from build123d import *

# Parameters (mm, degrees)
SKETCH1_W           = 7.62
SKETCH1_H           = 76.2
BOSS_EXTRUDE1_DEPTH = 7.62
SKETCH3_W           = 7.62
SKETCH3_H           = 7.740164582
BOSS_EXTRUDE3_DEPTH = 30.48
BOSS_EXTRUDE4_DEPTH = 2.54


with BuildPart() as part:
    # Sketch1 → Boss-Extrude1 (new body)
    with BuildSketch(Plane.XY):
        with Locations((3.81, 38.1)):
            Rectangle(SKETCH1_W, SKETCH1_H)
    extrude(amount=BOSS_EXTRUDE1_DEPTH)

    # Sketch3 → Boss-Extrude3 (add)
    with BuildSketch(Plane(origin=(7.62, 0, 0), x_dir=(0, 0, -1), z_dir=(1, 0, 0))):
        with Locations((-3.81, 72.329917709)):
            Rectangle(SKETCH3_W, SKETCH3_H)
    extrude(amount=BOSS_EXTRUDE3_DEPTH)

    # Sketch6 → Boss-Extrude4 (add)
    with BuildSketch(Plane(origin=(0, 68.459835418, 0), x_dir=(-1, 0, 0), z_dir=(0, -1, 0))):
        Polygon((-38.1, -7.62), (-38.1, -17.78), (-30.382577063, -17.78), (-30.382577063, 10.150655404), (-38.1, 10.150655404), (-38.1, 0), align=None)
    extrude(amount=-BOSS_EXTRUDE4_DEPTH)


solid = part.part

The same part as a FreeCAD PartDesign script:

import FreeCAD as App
import Part
import Sketcher
Q = App.Units.Quantity

doc = App.newDocument("Part")
params = doc.addObject("Spreadsheet::Sheet", "Params")
for row, (alias, value) in enumerate([
    ("sketch1_height", "3 in"),
    ("sketch1_width", "0.3 in"),
    ("pad1_length", "0.3 in"),
    ("sketch2_height", "0.3 in"),
    ("pad2_length", "1.2 in"),
    ("pad3_length", "0.1 in"),
], start=1):
    params.set(f"A{row}", alias)
    params.set(f"B{row}", "=" + value)
    params.setAlias(f"B{row}", alias)

body = doc.addObject("PartDesign::Body", "Body")

# Sketch on XY plane
sketch1 = doc.addObject("Sketcher::SketchObject", "Sketch")
body.addObject(sketch1)
sketch1.AttachmentSupport = (doc.XY_Plane, [""])
sketch1.MapMode = "FlatFace"
sketch1.addGeometry([
    Part.LineSegment(App.Vector(0, 76.2, 0), App.Vector(0, 0, 0)),
    Part.LineSegment(App.Vector(0, 0, 0), App.Vector(7.62, 0, 0)),
    Part.LineSegment(App.Vector(7.62, 0, 0), App.Vector(7.62, 76.2, 0)),
    Part.LineSegment(App.Vector(7.62, 76.2, 0), App.Vector(0, 76.2, 0)),
], False)
sketch1.addConstraint([
    Sketcher.Constraint("Coincident", 0, 2, 1, 1),
    Sketcher.Constraint("Coincident", 1, 2, 2, 1),
    Sketcher.Constraint("Coincident", 2, 2, 3, 1),
    Sketcher.Constraint("Coincident", 3, 2, 0, 1),
    Sketcher.Constraint("Vertical", 0),
    Sketcher.Constraint("Horizontal", 1),
    Sketcher.Constraint("Vertical", 2),
    Sketcher.Constraint("Horizontal", 3),
    Sketcher.Constraint("Coincident", 0, 2, -1, 1),
    Sketcher.Constraint("DistanceY", 0, 2, 0, 1, Q("3 in")),
    Sketcher.Constraint("DistanceX", 1, 1, 1, 2, Q("0.3 in")),
])
sketch1.setExpression("Constraints[9]", "Params.sketch1_height")
sketch1.setExpression("Constraints[10]", "Params.sketch1_width")
pad1 = doc.addObject("PartDesign::Pad", "Pad")
body.addObject(pad1)
pad1.Profile = sketch1
pad1.setExpression("Length", "Params.pad1_length")

# Sketch on YZ plane
sketch2 = doc.addObject("Sketcher::SketchObject", "Sketch001")
body.addObject(sketch2)
sketch2.AttachmentSupport = (doc.YZ_Plane, [""])
sketch2.MapMode = "FlatFace"
sketch2.AttachmentOffset = App.Placement(App.Vector(0, 0, 0.3 * 25.4), App.Rotation())
sketch2.addGeometry([
    Part.LineSegment(App.Vector(76.2, 7.62, 0), App.Vector(68.459835, 7.62, 0)),
    Part.LineSegment(App.Vector(68.459835, 7.62, 0), App.Vector(68.459835, 0, 0)),
    Part.LineSegment(App.Vector(68.459835, 0, 0), App.Vector(76.2, 0, 0)),
    Part.LineSegment(App.Vector(76.2, 0, 0), App.Vector(76.2, 7.62, 0)),
], False)
sketch2.addConstraint([
    Sketcher.Constraint("Coincident", 0, 2, 1, 1),
    Sketcher.Constraint("Coincident", 1, 2, 2, 1),
    Sketcher.Constraint("Coincident", 2, 2, 3, 1),
    Sketcher.Constraint("Coincident", 3, 2, 0, 1),
    Sketcher.Constraint("Horizontal", 0),
    Sketcher.Constraint("Vertical", 1),
    Sketcher.Constraint("Horizontal", 2),
    Sketcher.Constraint("Vertical", 3),
    Sketcher.Constraint("PointOnObject", 1, 2, -1),
    Sketcher.Constraint("DistanceY", 1, 2, 1, 1, Q("0.3 in")),
    Sketcher.Constraint("DistanceX", -1, 1, 2, 2, Q("3 in")),
    Sketcher.Constraint("DistanceX", 0, 2, 0, 1, Q("7.740165 mm")),
])
sketch2.setExpression("Constraints[9]", "Params.sketch2_height")
pad2 = doc.addObject("PartDesign::Pad", "Pad001")
body.addObject(pad2)
pad2.Profile = sketch2
pad2.setExpression("Length", "Params.pad2_length")

# Sketch on XZ plane
sketch3 = doc.addObject("Sketcher::SketchObject", "Sketch002")
body.addObject(sketch3)
sketch3.AttachmentSupport = (doc.XZ_Plane, [""])
sketch3.MapMode = "FlatFace"
sketch3.AttachmentOffset = App.Placement(App.Vector(0, 0, -68.459835), App.Rotation())
sketch3.addGeometry([
    Part.LineSegment(App.Vector(38.1, 17.78, 0), App.Vector(30.382577, 17.78, 0)),
    Part.LineSegment(App.Vector(30.382577, 17.78, 0), App.Vector(30.382577, -10.150655, 0)),
    Part.LineSegment(App.Vector(30.382577, -10.150655, 0), App.Vector(38.1, -10.150655, 0)),
    Part.LineSegment(App.Vector(38.1, -10.150655, 0), App.Vector(38.1, 17.78, 0)),
], False)
sketch3.addConstraint([
    Sketcher.Constraint("Coincident", 0, 2, 1, 1),
    Sketcher.Constraint("Coincident", 1, 2, 2, 1),
    Sketcher.Constraint("Coincident", 2, 2, 3, 1),
    Sketcher.Constraint("Coincident", 3, 2, 0, 1),
    Sketcher.Constraint("Horizontal", 0),
    Sketcher.Constraint("Vertical", 1),
    Sketcher.Constraint("Horizontal", 2),
    Sketcher.Constraint("Vertical", 3),
    Sketcher.Constraint("DistanceY", -1, 1, 0, 2, Q("0.7 in")),
    Sketcher.Constraint("DistanceX", -1, 1, 2, 2, Q("1.5 in")),
    Sketcher.Constraint("DistanceX", 0, 2, 0, 1, Q("7.717423 mm")),
    Sketcher.Constraint("DistanceY", 1, 2, 1, 1, Q("27.930655 mm")),
])
pad3 = doc.addObject("PartDesign::Pad", "Pad002")
body.addObject(pad3)
pad3.Profile = sketch3
pad3.setExpression("Length", "Params.pad3_length")
pad3.Reversed = True

doc.recompute()
